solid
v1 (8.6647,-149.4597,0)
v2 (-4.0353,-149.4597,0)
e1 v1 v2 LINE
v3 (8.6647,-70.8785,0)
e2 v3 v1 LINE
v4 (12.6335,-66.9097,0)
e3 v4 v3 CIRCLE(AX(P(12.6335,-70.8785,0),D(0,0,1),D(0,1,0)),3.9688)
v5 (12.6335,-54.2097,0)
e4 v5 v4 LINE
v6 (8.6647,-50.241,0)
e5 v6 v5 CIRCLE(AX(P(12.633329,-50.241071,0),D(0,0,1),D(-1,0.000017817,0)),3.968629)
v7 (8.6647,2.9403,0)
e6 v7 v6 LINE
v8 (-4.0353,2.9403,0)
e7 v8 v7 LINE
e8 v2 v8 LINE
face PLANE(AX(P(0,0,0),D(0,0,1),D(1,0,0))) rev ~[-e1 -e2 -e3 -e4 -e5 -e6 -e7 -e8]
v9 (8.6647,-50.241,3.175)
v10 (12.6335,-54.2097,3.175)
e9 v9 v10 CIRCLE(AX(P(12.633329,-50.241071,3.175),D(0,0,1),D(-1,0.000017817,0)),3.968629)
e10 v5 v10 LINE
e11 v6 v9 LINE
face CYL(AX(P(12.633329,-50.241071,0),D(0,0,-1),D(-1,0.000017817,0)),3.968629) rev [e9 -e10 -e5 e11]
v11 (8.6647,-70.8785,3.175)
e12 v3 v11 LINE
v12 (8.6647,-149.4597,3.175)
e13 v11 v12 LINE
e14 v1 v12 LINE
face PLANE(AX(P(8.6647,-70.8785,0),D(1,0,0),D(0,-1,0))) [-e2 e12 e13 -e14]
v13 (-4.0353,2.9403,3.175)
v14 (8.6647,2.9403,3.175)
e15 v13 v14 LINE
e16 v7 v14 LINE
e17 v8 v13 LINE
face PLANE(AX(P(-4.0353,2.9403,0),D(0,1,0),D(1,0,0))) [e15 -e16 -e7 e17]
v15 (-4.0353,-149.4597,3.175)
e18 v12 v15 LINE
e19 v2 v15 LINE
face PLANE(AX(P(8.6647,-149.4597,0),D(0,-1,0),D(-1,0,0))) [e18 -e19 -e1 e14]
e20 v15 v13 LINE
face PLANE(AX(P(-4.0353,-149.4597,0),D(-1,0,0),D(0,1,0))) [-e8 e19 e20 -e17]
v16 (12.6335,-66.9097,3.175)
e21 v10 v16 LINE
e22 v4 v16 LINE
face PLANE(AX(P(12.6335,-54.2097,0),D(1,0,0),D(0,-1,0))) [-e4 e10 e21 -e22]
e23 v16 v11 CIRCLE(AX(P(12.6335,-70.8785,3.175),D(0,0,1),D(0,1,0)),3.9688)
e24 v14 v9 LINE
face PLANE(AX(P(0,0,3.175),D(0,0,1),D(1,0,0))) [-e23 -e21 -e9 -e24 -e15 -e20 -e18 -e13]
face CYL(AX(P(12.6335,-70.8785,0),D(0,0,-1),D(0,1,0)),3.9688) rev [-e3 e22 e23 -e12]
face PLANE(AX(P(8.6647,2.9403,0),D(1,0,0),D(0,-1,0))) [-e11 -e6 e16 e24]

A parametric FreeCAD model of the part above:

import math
import FreeCAD as App
import Part
import Sketcher
from FreeCAD import Vector
Q = App.Units.Quantity

doc = App.newDocument("Part")
body = doc.addObject("PartDesign::Body", "Body")

# Sketch on XY plane
sketch1 = doc.addObject("Sketcher::SketchObject", "Sketch")
body.addObject(sketch1)
sketch1.AttachmentSupport = (doc.XY_Plane, [""])
sketch1.MapMode = "FlatFace"
sketch1.addGeometry([
    Part.LineSegment(Vector(8.6647, 2.9403, 0), Vector(-4.0353, 2.9403, 0)),  # 0
    Part.LineSegment(Vector(-4.0353, 2.9403, 0), Vector(-4.0353, -149.4597, 0)),  # 1
    Part.LineSegment(Vector(-4.0353, -149.4597, 0), Vector(8.6647, -149.4597, 0)),  # 2
    Part.LineSegment(Vector(8.6647, -149.4597, 0), Vector(8.6647, -70.8785, 0)),  # 3
    Part.ArcOfCircle(Part.Circle(Vector(12.6335, -70.8785, 0), Vector(0, 0, 1), 3.9688), math.radians(90), math.radians(180)),  # 4
    Part.LineSegment(Vector(12.6335, -66.9097, 0), Vector(12.6335, -54.2097, 0)),  # 5
    Part.ArcOfCircle(Part.Circle(Vector(12.6335, -50.241, 0), Vector(0, 0, 1), 3.9688), math.radians(180), math.radians(270)),  # 6
    Part.LineSegment(Vector(8.6647, -50.241, 0), Vector(8.6647, 2.9403, 0)),  # 7
], False)
sketch1.addConstraint([
    Sketcher.Constraint("Coincident", 0, 2, 1, 1),
    Sketcher.Constraint("Coincident", 1, 2, 2, 1),
    Sketcher.Constraint("Coincident", 2, 2, 3, 1),
    Sketcher.Constraint("Tangent", 3, 2, 4, 2),
    Sketcher.Constraint("Coincident", 4, 1, 5, 1),
    Sketcher.Constraint("Coincident", 5, 2, 6, 2),
    Sketcher.Constraint("Tangent", 6, 1, 7, 1),
    Sketcher.Constraint("Coincident", 7, 2, 0, 1),
    Sketcher.Constraint("Horizontal", 0),
    Sketcher.Constraint("Vertical", 1),
    Sketcher.Constraint("Horizontal", 2),
    Sketcher.Constraint("Vertical", 3),
    Sketcher.Constraint("Vertical", 5),
    Sketcher.Constraint("Vertical", 7),
    Sketcher.Constraint("Equal", 4, 6),
    Sketcher.Constraint("Vertical", 4, 3, 6, 3),
    Sketcher.Constraint("Vertical", 6, 3, 4, 1),
    Sketcher.Constraint("Equal", 2, 5),
    Sketcher.Constraint("DistanceY", 1, 2, 1, 1, Q("6 in")),
    Sketcher.Constraint("DistanceX", 0, 2, 0, 1, Q("0.5 in")),
    Sketcher.Constraint("Radius", 4, Q("0.156252 in")),
    Sketcher.Constraint("DistanceY", 5, 2, 0, 2, Q("2.25 in")),
    Sketcher.Constraint("DistanceY", 6, 3, -1, 1, Q("1.978 in")),
    Sketcher.Constraint("DistanceX", -1, 1, 4, 3, 12.6335),
])
pad1 = doc.addObject("PartDesign::Pad", "Pad")
body.addObject(pad1)
pad1.Profile = sketch1
pad1.Length = Q("0.125 in")

doc.recompute()
